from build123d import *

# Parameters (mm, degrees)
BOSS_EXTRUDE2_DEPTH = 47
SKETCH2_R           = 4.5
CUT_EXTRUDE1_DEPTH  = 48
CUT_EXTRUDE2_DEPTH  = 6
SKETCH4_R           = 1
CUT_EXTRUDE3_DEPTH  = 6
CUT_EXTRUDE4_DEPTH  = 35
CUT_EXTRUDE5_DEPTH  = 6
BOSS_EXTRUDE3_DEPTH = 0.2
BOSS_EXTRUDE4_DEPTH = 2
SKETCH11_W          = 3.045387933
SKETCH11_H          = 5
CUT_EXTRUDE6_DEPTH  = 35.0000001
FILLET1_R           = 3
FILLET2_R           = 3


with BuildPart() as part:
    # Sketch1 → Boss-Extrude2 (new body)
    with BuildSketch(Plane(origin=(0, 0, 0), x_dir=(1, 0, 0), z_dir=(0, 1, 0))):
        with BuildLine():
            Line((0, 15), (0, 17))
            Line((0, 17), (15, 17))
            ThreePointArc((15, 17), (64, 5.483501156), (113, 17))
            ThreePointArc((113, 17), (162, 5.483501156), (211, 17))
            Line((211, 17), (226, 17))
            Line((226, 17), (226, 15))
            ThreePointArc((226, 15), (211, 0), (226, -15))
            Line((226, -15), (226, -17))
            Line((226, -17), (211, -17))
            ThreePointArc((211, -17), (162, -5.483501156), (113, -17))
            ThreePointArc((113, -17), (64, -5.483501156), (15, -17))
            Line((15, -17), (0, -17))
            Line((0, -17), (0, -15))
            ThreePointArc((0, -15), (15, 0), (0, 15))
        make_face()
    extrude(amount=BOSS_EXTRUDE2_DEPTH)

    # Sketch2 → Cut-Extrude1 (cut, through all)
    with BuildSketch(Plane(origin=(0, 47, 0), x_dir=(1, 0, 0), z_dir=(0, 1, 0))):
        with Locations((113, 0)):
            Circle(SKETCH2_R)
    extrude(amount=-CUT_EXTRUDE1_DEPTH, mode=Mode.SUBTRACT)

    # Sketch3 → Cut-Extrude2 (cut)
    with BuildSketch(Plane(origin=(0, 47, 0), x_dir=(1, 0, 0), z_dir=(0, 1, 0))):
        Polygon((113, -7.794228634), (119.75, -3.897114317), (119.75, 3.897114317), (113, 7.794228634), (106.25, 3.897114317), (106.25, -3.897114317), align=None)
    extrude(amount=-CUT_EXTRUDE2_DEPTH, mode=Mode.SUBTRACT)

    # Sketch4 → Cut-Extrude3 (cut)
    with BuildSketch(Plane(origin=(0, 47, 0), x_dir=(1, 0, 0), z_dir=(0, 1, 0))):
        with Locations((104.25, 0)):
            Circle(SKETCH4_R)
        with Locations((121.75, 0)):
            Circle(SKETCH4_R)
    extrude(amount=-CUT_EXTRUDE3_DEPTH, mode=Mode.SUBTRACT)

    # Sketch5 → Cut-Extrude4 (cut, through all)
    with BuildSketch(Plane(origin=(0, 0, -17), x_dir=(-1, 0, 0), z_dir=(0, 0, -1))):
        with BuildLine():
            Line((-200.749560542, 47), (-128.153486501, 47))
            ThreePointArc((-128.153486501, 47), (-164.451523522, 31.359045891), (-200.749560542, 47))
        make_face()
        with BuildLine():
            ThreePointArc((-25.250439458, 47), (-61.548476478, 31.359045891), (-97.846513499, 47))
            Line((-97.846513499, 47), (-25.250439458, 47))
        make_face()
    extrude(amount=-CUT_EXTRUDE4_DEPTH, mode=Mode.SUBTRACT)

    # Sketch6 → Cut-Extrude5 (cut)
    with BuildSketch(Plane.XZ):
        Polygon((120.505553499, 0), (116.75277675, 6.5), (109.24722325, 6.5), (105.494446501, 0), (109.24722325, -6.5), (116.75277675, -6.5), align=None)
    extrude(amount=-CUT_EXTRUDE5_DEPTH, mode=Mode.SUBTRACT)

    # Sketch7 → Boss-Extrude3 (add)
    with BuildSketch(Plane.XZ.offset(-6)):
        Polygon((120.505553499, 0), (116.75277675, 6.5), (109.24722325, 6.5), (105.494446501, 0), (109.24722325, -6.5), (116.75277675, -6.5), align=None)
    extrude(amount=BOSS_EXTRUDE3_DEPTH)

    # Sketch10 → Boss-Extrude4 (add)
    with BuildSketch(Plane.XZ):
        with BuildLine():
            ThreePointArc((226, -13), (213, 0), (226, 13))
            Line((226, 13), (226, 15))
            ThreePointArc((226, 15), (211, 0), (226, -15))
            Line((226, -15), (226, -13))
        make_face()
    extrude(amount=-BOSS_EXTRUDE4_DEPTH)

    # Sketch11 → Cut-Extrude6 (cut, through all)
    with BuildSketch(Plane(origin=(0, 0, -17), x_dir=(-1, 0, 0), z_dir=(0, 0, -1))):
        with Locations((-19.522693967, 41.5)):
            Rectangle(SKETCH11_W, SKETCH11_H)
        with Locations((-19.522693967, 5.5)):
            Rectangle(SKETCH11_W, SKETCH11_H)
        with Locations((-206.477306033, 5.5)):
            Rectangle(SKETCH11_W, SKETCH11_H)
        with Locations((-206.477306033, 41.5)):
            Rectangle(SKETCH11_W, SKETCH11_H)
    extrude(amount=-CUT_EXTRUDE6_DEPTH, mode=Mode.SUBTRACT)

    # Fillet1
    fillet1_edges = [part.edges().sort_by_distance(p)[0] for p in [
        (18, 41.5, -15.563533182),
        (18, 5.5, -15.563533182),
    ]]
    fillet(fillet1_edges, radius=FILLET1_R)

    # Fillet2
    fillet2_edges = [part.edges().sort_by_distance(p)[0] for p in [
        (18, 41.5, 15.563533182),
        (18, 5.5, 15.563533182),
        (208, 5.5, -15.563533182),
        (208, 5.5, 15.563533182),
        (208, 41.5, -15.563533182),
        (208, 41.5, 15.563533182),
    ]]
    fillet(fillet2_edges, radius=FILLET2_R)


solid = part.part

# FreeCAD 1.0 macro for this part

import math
import FreeCAD as App
import Part
import Sketcher
from FreeCAD import Vector
Q = App.Units.Quantity


def edges_at(feature, points):
    """Names of the edges that pass closest to the given points."""
    edges = feature.Shape.Edges
    near = lambda p: min(range(len(edges)), key=lambda i: edges[i].distToShape(Part.Vertex(*p))[0])
    return sorted({f"Edge{near(p) + 1}" for p in points})


def add_polygon(sketch, points):
    """Adds a closed chain of lines whose ends are joined by coincident constraints."""
    first, n = sketch.GeometryCount, len(points)
    for a, b in zip(points, points[1:] + points[:1]):
        sketch.addGeometry(Part.LineSegment(App.Vector(*a, 0), App.Vector(*b, 0)), False)
    for i in range(n):
        sketch.addConstraint(Sketcher.Constraint("Coincident", first + i, 2, first + (i + 1) % n, 1))

doc = App.newDocument("Part")
params = doc.addObject("Spreadsheet::Sheet", "Params")
for row, (alias, value) in enumerate([
    ("sketch1_radius", "15 mm"),
    ("sketch1_radius2", "110 mm"),
    ("sketch1_width", "15 mm"),
    ("sketch1_height", "2 mm"),
    ("pad1_length", "47 mm"),
    ("sketch2_diameter", "9 mm"),
    ("pocket2_length", "6 mm"),
    ("sketch4_diameter", "2 mm"),
    ("pocket3_length", "6 mm"),
    ("pocket5_length", "6 mm"),
    ("pad2_length", "0.2 mm"),
    ("sketch8_radius", "13 mm"),
    ("sketch8_radius2", "15 mm"),
    ("pad3_length", "2 mm"),
    ("sketch9_height", "5 mm"),
    ("fillet_radius", "3 mm"),
    ("fillet2_radius", "3 mm"),
], start=1):
    params.set(f"A{row}", alias)
    params.set(f"B{row}", "=" + value)
    params.setAlias(f"B{row}", alias)

body = doc.addObject("PartDesign::Body", "Body")

# Sketch on XZ plane
sketch1 = body.newObject("Sketcher::SketchObject", "Sketch")
sketch1.AttachmentSupport = (doc.getObject("XZ_Plane"), [""])
sketch1.MapMode = "FlatFace"
sketch1.addGeometry([
    Part.LineSegment(Vector(0, -17, 0), Vector(0, -15, 0)),  # 0
    Part.ArcOfCircle(Part.Circle(Vector(0, 0, 0), Vector(0, 0, 1), 15), math.radians(-90), math.radians(90)),  # 1
    Part.LineSegment(Vector(0, 15, 0), Vector(0, 17, 0)),  # 2
    Part.LineSegment(Vector(0, 17, 0), Vector(15, 17, 0)),  # 3
    Part.ArcOfCircle(Part.Circle(Vector(64, 115.5, 0), Vector(0, 0, 1), 110), math.radians(-116), math.radians(-64)),  # 4
    Part.ArcOfCircle(Part.Circle(Vector(162, 115.5, 0), Vector(0, 0, 1), 110), math.radians(-116), math.radians(-64)),  # 5
    Part.LineSegment(Vector(211, 17, 0), Vector(226, 17, 0)),  # 6
    Part.LineSegment(Vector(226, 17, 0), Vector(226, 15, 0)),  # 7
    Part.ArcOfCircle(Part.Circle(Vector(226, 0, 0), Vector(0, 0, 1), 15), math.radians(90), math.radians(270)),  # 8
    Part.LineSegment(Vector(226, -15, 0), Vector(226, -17, 0)),  # 9
    Part.LineSegment(Vector(226, -17, 0), Vector(211, -17, 0)),  # 10
    Part.ArcOfCircle(Part.Circle(Vector(162, -115.5, 0), Vector(0, 0, 1), 110), math.radians(64), math.radians(116)),  # 11
    Part.ArcOfCircle(Part.Circle(Vector(64, -115.5, 0), Vector(0, 0, 1), 110), math.radians(64), math.radians(116)),  # 12
    Part.LineSegment(Vector(15, -17, 0), Vector(0, -17, 0)),  # 13
], False)
sketch1.addConstraint([
    Sketcher.Constraint("Coincident", 0, 2, 1, 1),
    Sketcher.Constraint("Coincident", 1, 2, 2, 1),
    Sketcher.Constraint("Coincident", 2, 2, 3, 1),
    Sketcher.Constraint("Coincident", 3, 2, 4, 1),
    Sketcher.Constraint("Coincident", 4, 2, 5, 1),
    Sketcher.Constraint("Coincident", 5, 2, 6, 1),
    Sketcher.Constraint("Coincident", 6, 2, 7, 1),
    Sketcher.Constraint("Coincident", 7, 2, 8, 1),
    Sketcher.Constraint("Coincident", 8, 2, 9, 1),
    Sketcher.Constraint("Coincident", 9, 2, 10, 1),
    Sketcher.Constraint("Coincident", 10, 2, 11, 1),
    Sketcher.Constraint("Coincident", 11, 2, 12, 1),
    Sketcher.Constraint("Coincident", 12, 2, 13, 1),
    Sketcher.Constraint("Coincident", 13, 2, 0, 1),
    Sketcher.Constraint("Vertical", 0),
    Sketcher.Constraint("Vertical", 2),
    Sketcher.Constraint("Horizontal", 3),
    Sketcher.Constraint("Horizontal", 6),
    Sketcher.Constraint("Vertical", 7),
    Sketcher.Constraint("Vertical", 9),
    Sketcher.Constraint("Horizontal", 10),
    Sketcher.Constraint("Horizontal", 13),
    Sketcher.Constraint("Coincident", 1, 3, -1, 1),
    Sketcher.Constraint("Equal", 4, 5),
    Sketcher.Constraint("Equal", 1, 8),
    Sketcher.Constraint("Equal", 5, 11),
    Sketcher.Constraint("Equal", 11, 12),
    Sketcher.Constraint("Symmetric", 2, 2, 13, 2, -1, 1),
    Sketcher.Constraint("Symmetric", 5, 3, 11, 3, -1),
    Sketcher.Constraint("Symmetric", 4, 3, 12, 3, -1),
    Sketcher.Constraint("Symmetric", 7, 2, 8, 2, -1),
    Sketcher.Constraint("PointOnObject", 0, 2, -2),
    Sketcher.Constraint("Horizontal", 4, 3, 5, 3),
    Sketcher.Constraint("Horizontal", 3, 2, 4, 2),
    Sketcher.Constraint("Horizontal", 4, 2, 5, 2),
    Sketcher.Constraint("Horizontal", 10, 2, 11, 2),
    Sketcher.Constraint("Vertical", 8, 3, 6, 2),
    Sketcher.Constraint("Equal", 3, 6),
    Sketcher.Constraint("Radius", 1, Q("15 mm")),
    Sketcher.Constraint("Radius", 4, Q("110 mm")),
    Sketcher.Constraint("DistanceX", 3, 1, 3, 2, Q("15 mm")),
    Sketcher.Constraint("DistanceY", 0, 1, 0, 2, Q("2 mm")),
    Sketcher.Constraint("DistanceX", -1, 1, 4, 3, Q("64 mm")),
])
sketch1.setExpression("Constraints[38]", "Params.sketch1_radius")
sketch1.setExpression("Constraints[39]", "Params.sketch1_radius2")
sketch1.setExpression("Constraints[40]", "Params.sketch1_width")
sketch1.setExpression("Constraints[41]", "Params.sketch1_height")
pad1 = body.newObject("PartDesign::Pad", "Pad")
pad1.Profile = sketch1
pad1.setExpression("Length", "Params.pad1_length")
pad1.Reversed = True

# Sketch on XZ plane
sketch2 = body.newObject("Sketcher::SketchObject", "Sketch001")
sketch2.AttachmentSupport = (doc.getObject("XZ_Plane"), [""])
sketch2.MapMode = "FlatFace"
sketch2.AttachmentOffset = App.Placement(Vector(0, 0, -47), App.Rotation())
sketch2.addGeometry(Part.Circle(Vector(113, 0, 0), Vector(0, 0, 1), 4.5), False)
sketch2.addConstraint([
    Sketcher.Constraint("PointOnObject", 0, 3, -1),
    Sketcher.Constraint("Diameter", 0, Q("9 mm")),
    Sketcher.Constraint("DistanceX", -1, 1, 0, 3, Q("113 mm")),
])
sketch2.setExpression("Constraints[1]", "Params.sketch2_diameter")
pocket1 = body.newObject("PartDesign::Pocket", "Pocket")
pocket1.Profile = sketch2
pocket1.Type = "ThroughAll"
pocket1.Reversed = True

# Sketch on XZ plane
sketch3 = body.newObject("Sketcher::SketchObject", "Sketch002")
sketch3.AttachmentSupport = (doc.getObject("XZ_Plane"), [""])
sketch3.MapMode = "FlatFace"
sketch3.AttachmentOffset = App.Placement(Vector(0, 0, -47), App.Rotation())
add_polygon(sketch3, [(113, 8), (120, 4), (120, -4), (113, -8), (106, -4), (106, 4)])  # lines 0-5
sketch3.addConstraint([
    Sketcher.Constraint("Vertical", 1),
    Sketcher.Constraint("Vertical", 4),
    Sketcher.Constraint("Symmetric", 2, 2, 5, 2, -1),
    Sketcher.Constraint("Parallel", 0, 3),
    Sketcher.Constraint("Parallel", 2, 5),
    Sketcher.Constraint("Horizontal", 1, 2, 3, 2),
    Sketcher.Constraint("Horizontal", 0, 2, 4, 2),
    Sketcher.Constraint("Angle", 0, Q("-30 deg")),
    Sketcher.Constraint("DistanceX", -1, 1, 2, 2, Q("113 mm")),
    Sketcher.Constraint("DistanceX", 3, 2, 1, 2, Q("13.5 mm")),
    Sketcher.Constraint("DistanceY", 1, 2, 1, 1, Q("7.794229 mm")),
])
pocket2 = body.newObject("PartDesign::Pocket", "Pocket001")
pocket2.Profile = sketch3
pocket2.setExpression("Length", "Params.pocket2_length")
pocket2.Reversed = True

# Sketch on XZ plane
sketch4 = body.newObject("Sketcher::SketchObject", "Sketch003")
sketch4.AttachmentSupport = (doc.getObject("XZ_Plane"), [""])
sketch4.MapMode = "FlatFace"
sketch4.AttachmentOffset = App.Placement(Vector(0, 0, -47), App.Rotation())
sketch4.addGeometry([
    Part.Circle(Vector(104.2, 0, 0), Vector(0, 0, 1), 1),
    Part.Circle(Vector(121.8, 0, 0), Vector(0, 0, 1), 1),
], False)
sketch4.addConstraint([
    Sketcher.Constraint("Equal", 0, 1),
    Sketcher.Constraint("PointOnObject", 0, 3, -1),
    Sketcher.Constraint("PointOnObject", 1, 3, -1),
    Sketcher.Constraint("Diameter", 0, Q("2 mm")),
    Sketcher.Constraint("DistanceX", 0, 3, 1, 3, Q("17.5 mm")),
    Sketcher.Constraint("DistanceX", -1, 1, 0, 3, Q("104.25 mm")),
])
sketch4.setExpression("Constraints[3]", "Params.sketch4_diameter")
pocket3 = body.newObject("PartDesign::Pocket", "Pocket002")
pocket3.Profile = sketch4
pocket3.setExpression("Length", "Params.pocket3_length")
pocket3.Reversed = True

# Sketch on XY plane
sketch5 = body.newObject("Sketcher::SketchObject", "Sketch004")
sketch5.AttachmentSupport = (doc.getObject("XY_Plane"), [""])
sketch5.MapMode = "FlatFace"
sketch5.AttachmentOffset = App.Placement(Vector(0, 0, -17), App.Rotation())
sketch5.addGeometry([
    Part.LineSegment(Vector(128, 47, 0), Vector(201, 47, 0)),
    Part.ArcOfCircle(Part.Circle(Vector(164, 81, 0), Vector(0, 0, 1), 50), math.radians(-137), math.radians(-43)),
    Part.ArcOfCircle(Part.Circle(Vector(62, 81, 0), Vector(0, 0, 1), 50), math.radians(-137), math.radians(-43)),
    Part.LineSegment(Vector(25, 47, 0), Vector(98, 47, 0)),
], False)
sketch5.addConstraint([
    Sketcher.Constraint("Coincident", 0, 1, 1, 1),
    Sketcher.Constraint("Coincident", 1, 2, 0, 2),
    Sketcher.Constraint("Coincident", 2, 1, 3, 1),
    Sketcher.Constraint("Coincident", 3, 2, 2, 2),
    Sketcher.Constraint("Horizontal", 0),
    Sketcher.Constraint("Horizontal", 3),
    Sketcher.Constraint("Equal", 1, 2),
    Sketcher.Constraint("Horizontal", 1, 3, 2, 3),
    Sketcher.Constraint("Horizontal", 1, 2, 2, 1),
    Sketcher.Constraint("DistanceY", -1, 1, 0, 1, Q("47 mm")),
    Sketcher.Constraint("Radius", 1, Q("49.938991 mm")),
    Sketcher.Constraint("DistanceX", 0, 1, 0, 2, Q("72.596074 mm")),
    Sketcher.Constraint("DistanceX", -1, 1, 1, 2, Q("200.749561 mm")),
    Sketcher.Constraint("DistanceX", -1, 1, 2, 1, Q("25.250439 mm")),
])
pocket4 = body.newObject("PartDesign::Pocket", "Pocket003")
pocket4.Profile = sketch5
pocket4.Type = "ThroughAll"
pocket4.Reversed = True

# Sketch on XZ plane
sketch6 = body.newObject("Sketcher::SketchObject", "Sketch005")
sketch6.AttachmentSupport = (doc.getObject("XZ_Plane"), [""])
sketch6.MapMode = "FlatFace"
add_polygon(sketch6, [(121, 0), (117, 6), (109, 6), (105, 0), (109, -6), (117, -6)])  # lines 0-5
sketch6.addConstraint([
    Sketcher.Constraint("Horizontal", 1),
    Sketcher.Constraint("Horizontal", 4),
    Sketcher.Constraint("Symmetric", 1, 2, 3, 2, -1),
    Sketcher.Constraint("PointOnObject", 2, 2, -1),
    Sketcher.Constraint("PointOnObject", 5, 2, -1),
    Sketcher.Constraint("Parallel", 0, 3),
    Sketcher.Constraint("Parallel", 2, 5),
    Sketcher.Constraint("Angle", 0, Q("120 deg")),
    Sketcher.Constraint("DistanceY", 3, 2, 1, 2, Q("13 mm")),
    Sketcher.Constraint("DistanceX", 1, 2, 1, 1, Q("7.505553 mm")),
    Sketcher.Constraint("DistanceX", -1, 1, 0, 2, Q("116.752777 mm")),
])
pocket5 = body.newObject("PartDesign::Pocket", "Pocket004")
pocket5.Profile = sketch6
pocket5.setExpression("Length", "Params.pocket5_length")

# Sketch on XZ plane
sketch7 = body.newObject("Sketcher::SketchObject", "Sketch006")
sketch7.AttachmentSupport = (doc.getObject("XZ_Plane"), [""])
sketch7.MapMode = "FlatFace"
sketch7.AttachmentOffset = App.Placement(Vector(0, 0, -6), App.Rotation())
add_polygon(sketch7, [(121, 0), (117, 6), (109, 6), (105, 0), (109, -6), (117, -6)])  # lines 0-5
sketch7.addConstraint([
    Sketcher.Constraint("Horizontal", 1),
    Sketcher.Constraint("Horizontal", 4),
    Sketcher.Constraint("Symmetric", 1, 2, 3, 2, -1),
    Sketcher.Constraint("PointOnObject", 2, 2, -1),
    Sketcher.Constraint("PointOnObject", 5, 2, -1),
    Sketcher.Constraint("Parallel", 0, 3),
    Sketcher.Constraint("Parallel", 2, 5),
    Sketcher.Constraint("Angle", 0, Q("120 deg")),
    Sketcher.Constraint("DistanceY", 3, 2, 1, 2, Q("13 mm")),
    Sketcher.Constraint("DistanceX", 1, 2, 1, 1, Q("7.505553 mm")),
    Sketcher.Constraint("DistanceX", -1, 1, 0, 2, Q("116.752777 mm")),
])
pad2 = body.newObject("PartDesign::Pad", "Pad001")
pad2.Profile = sketch7
pad2.setExpression("Length", "Params.pad2_length")

# Sketch on XZ plane
sketch8 = body.newObject("Sketcher::SketchObject", "Sketch007")
sketch8.AttachmentSupport = (doc.getObject("XZ_Plane"), [""])
sketch8.MapMode = "FlatFace"
sketch8.addGeometry([
    Part.ArcOfCircle(Part.Circle(Vector(226, 0, 0), Vector(0, 0, 1), 13), math.radians(90), math.radians(270)),
    Part.LineSegment(Vector(226, 13, 0), Vector(226, 15, 0)),
    Part.ArcOfCircle(Part.Circle(Vector(226, 0, 0), Vector(0, 0, 1), 15), math.radians(90), math.radians(270)),
    Part.LineSegment(Vector(226, -15, 0), Vector(226, -13, 0)),
], False)
sketch8.addConstraint([
    Sketcher.Constraint("Coincident", 0, 1, 1, 1),
    Sketcher.Constraint("Coincident", 1, 2, 2, 1),
    Sketcher.Constraint("Coincident", 2, 2, 3, 1),
    Sketcher.Constraint("Coincident", 3, 2, 0, 2),
    Sketcher.Constraint("Vertical", 1),
    Sketcher.Constraint("Vertical", 3),
    Sketcher.Constraint("Coincident", 2, 3, 0, 3),
    Sketcher.Constraint("Symmetric", 1, 2, 2, 2, -1),
    Sketcher.Constraint("Vertical", 2, 3, 0, 1),
    Sketcher.Constraint("Radius", 0, Q("13 mm")),
    Sketcher.Constraint("Radius", 2, Q("15 mm")),
    Sketcher.Constraint("DistanceX", -1, 1, 0, 3, Q("226 mm")),
])
sketch8.setExpression("Constraints[9]", "Params.sketch8_radius")
sketch8.setExpression("Constraints[10]", "Params.sketch8_radius2")
pad3 = body.newObject("PartDesign::Pad", "Pad002")
pad3.Profile = sketch8
pad3.setExpression("Length", "Params.pad3_length")
pad3.Reversed = True

# Sketch on XY plane
sketch9 = body.newObject("Sketcher::SketchObject", "Sketch008")
sketch9.AttachmentSupport = (doc.getObject("XY_Plane"), [""])
sketch9.MapMode = "FlatFace"
sketch9.AttachmentOffset = App.Placement(Vector(0, 0, -17), App.Rotation())
add_polygon(sketch9, [(21, 44), (21, 39), (18, 39), (18, 44)])  # lines 0-3
add_polygon(sketch9, [(21, 8), (21, 3), (18, 3), (18, 8)])  # lines 4-7
add_polygon(sketch9, [(208, 8), (208, 3), (205, 3), (205, 8)])  # lines 8-11
add_polygon(sketch9, [(208, 44), (208, 39), (205, 39), (205, 44)])  # lines 12-15
sketch9.addConstraint([
    Sketcher.Constraint("Vertical", 0),
    Sketcher.Constraint("Horizontal", 1),
    Sketcher.Constraint("Vertical", 2),
    Sketcher.Constraint("Horizontal", 3),
    Sketcher.Constraint("Vertical", 4),
    Sketcher.Constraint("Horizontal", 5),
    Sketcher.Constraint("Vertical", 6),
    Sketcher.Constraint("Horizontal", 7),
    Sketcher.Constraint("Vertical", 8),
    Sketcher.Constraint("Horizontal", 9),
    Sketcher.Constraint("Vertical", 10),
    Sketcher.Constraint("Horizontal", 11),
    Sketcher.Constraint("Vertical", 12),
    Sketcher.Constraint("Horizontal", 13),
    Sketcher.Constraint("Vertical", 14),
    Sketcher.Constraint("Horizontal", 15),
    Sketcher.Constraint("Horizontal", 5, 2, 8, 2),
    Sketcher.Constraint("Horizontal", 7, 2, 10, 2),
    Sketcher.Constraint("Horizontal", 1, 2, 12, 2),
    Sketcher.Constraint("Horizontal", 3, 2, 14, 2),
    Sketcher.Constraint("Vertical", 3, 2, 4, 2),
    Sketcher.Constraint("Vertical", 2, 2, 5, 2),
    Sketcher.Constraint("Vertical", 11, 2, 12, 2),
    Sketcher.Constraint("Vertical", 10, 2, 13, 2),
    Sketcher.Constraint("Equal", 7, 9),
    Sketcher.Constraint("Equal", 2, 4),
    Sketcher.Constraint("DistanceY", 0, 2, 0, 1, Q("5 mm")),
    Sketcher.Constraint("DistanceY", -1, 1, 0, 2, Q("39 mm")),
    Sketcher.Constraint("DistanceX", -1, 1, 1, 2, Q("18 mm")),
    Sketcher.Constraint("DistanceY", -1, 1, 4, 2, Q("3 mm")),
    Sketcher.Constraint("DistanceX", -1, 1, 8, 2, Q("208 mm")),
    Sketcher.Constraint("DistanceX", 1, 2, 1, 1, Q("3.045388 mm")),
])
sketch9.setExpression("Constraints[42]", "Params.sketch9_height")
pocket6 = body.newObject("PartDesign::Pocket", "Pocket005")
pocket6.Profile = sketch9
pocket6.Type = "ThroughAll"
pocket6.Reversed = True
doc.recompute()

fillet = body.newObject("PartDesign::Fillet", "Fillet")
fillet.Base = (pocket6, edges_at(pocket6, [(18, 41.5, -15.564), (18, 5.5, -15.564)]))
fillet.setExpression("Radius", "Params.fillet_radius")
doc.recompute()

fillet2 = body.newObject("PartDesign::Fillet", "Fillet001")
fillet2.Base = (fillet, edges_at(fillet, [
    (18, 41.5, 15.564),
    (18, 5.5, 15.564),
    (208, 5.5, -15.564),
    (208, 5.5, 15.564),
    (208, 41.5, -15.564),
    (208, 41.5, 15.564),
]))
fillet2.setExpression("Radius", "Params.fillet2_radius")

doc.recompute()
